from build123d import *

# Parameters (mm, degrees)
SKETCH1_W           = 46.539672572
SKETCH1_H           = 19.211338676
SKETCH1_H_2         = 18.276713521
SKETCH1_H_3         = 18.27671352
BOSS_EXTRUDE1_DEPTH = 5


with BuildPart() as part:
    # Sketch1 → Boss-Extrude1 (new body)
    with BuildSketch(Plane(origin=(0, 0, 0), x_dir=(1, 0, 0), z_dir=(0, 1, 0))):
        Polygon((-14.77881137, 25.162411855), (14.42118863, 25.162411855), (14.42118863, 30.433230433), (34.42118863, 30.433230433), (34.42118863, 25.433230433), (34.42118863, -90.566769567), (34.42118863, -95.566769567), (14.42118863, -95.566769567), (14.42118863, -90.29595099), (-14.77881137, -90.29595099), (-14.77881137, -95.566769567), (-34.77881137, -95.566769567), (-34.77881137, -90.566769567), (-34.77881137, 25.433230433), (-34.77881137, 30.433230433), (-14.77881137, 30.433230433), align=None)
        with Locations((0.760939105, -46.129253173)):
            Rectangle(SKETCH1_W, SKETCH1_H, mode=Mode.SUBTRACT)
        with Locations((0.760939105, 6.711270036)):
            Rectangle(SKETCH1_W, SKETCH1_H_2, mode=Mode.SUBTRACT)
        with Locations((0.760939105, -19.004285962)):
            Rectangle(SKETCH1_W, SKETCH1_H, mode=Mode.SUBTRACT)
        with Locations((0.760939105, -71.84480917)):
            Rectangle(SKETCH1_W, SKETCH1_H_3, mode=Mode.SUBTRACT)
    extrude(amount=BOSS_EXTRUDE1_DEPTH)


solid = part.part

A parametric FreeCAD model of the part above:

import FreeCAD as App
import Part
import Sketcher


def add_polygon(sketch, points):
    """Adds a closed chain of lines whose ends are joined by coincident constraints."""
    first, n = sketch.GeometryCount, len(points)
    for a, b in zip(points, points[1:] + points[:1]):
        sketch.addGeometry(Part.LineSegment(App.Vector(*a, 0), App.Vector(*b, 0)), False)
    for i in range(n):
        sketch.addConstraint(Sketcher.Constraint("Coincident", first + i, 2, first + (i + 1) % n, 1))

doc = App.newDocument("Part")
params = doc.addObject("Spreadsheet::Sheet", "Params")
for row, (alias, value) in enumerate([
    ("sketch1_width", "20 mm"),
    ("sketch1_height", "126 mm"),
    ("sketch1_width2", "29.2 mm"),
    ("pad1_length", "5 mm"),
], start=1):
    params.set(f"A{row}", alias)
    params.set(f"B{row}", "=" + value)
    params.setAlias(f"B{row}", alias)

body = doc.addObject("PartDesign::Body", "Body")

sketch1 = doc.addObject("Sketcher::SketchObject", "Sketch")
body.addObject(sketch1)
sketch1.AttachmentSupport = (doc.XZ_Plane, [""])
sketch1.MapMode = "FlatFace"
add_polygon(sketch1, [(14.421189, -25.162412), (-14.778811, -25.162412), (-14.778811, -30.43323), (-34.778811, -30.43323), (-34.778811, 95.56677), (-14.778811, 95.56677), (-14.778811, 90.295951), (14.421189, 90.295951), (14.421189, 95.56677), (34.421189, 95.56677), (34.421189, -30.43323), (14.421189, -30.43323)])
add_polygon(sketch1, [(-22.508897, 80.983166), (-22.508897, 62.706452), (24.030775, 62.706452), (24.030775, 80.983166)])
add_polygon(sketch1, [(-22.508897, 55.734923), (-22.508897, 36.523584), (24.030775, 36.523584), (24.030775, 55.734923)])
add_polygon(sketch1, [(-22.508897, 28.609955), (-22.508897, 9.398617), (24.030775, 9.398617), (24.030775, 28.609955)])
add_polygon(sketch1, [(-22.508897, 2.427087), (-22.508897, -15.849627), (24.030775, -15.849627), (24.030775, 2.427087)])
sketch1.addConstraint([
    Sketcher.Constraint("Horizontal", 0),
    Sketcher.Constraint("Vertical", 1),
    Sketcher.Constraint("Horizontal", 2),
    Sketcher.Constraint("Vertical", 3),
    Sketcher.Constraint("Horizontal", 4),
    Sketcher.Constraint("Vertical", 5),
    Sketcher.Constraint("Horizontal", 6),
    Sketcher.Constraint("Vertical", 7),
    Sketcher.Constraint("Horizontal", 8),
    Sketcher.Constraint("Vertical", 9),
    Sketcher.Constraint("Horizontal", 10),
    Sketcher.Constraint("Vertical", 11),
    Sketcher.Constraint("Vertical", 12),
    Sketcher.Constraint("Horizontal", 13),
    Sketcher.Constraint("Vertical", 14),
    Sketcher.Constraint("Horizontal", 15),
    Sketcher.Constraint("Vertical", 16),
    Sketcher.Constraint("Horizontal", 17),
    Sketcher.Constraint("Vertical", 18),
    Sketcher.Constraint("Horizontal", 19),
    Sketcher.Constraint("Vertical", 20),
    Sketcher.Constraint("Horizontal", 21),
    Sketcher.Constraint("Vertical", 22),
    Sketcher.Constraint("Horizontal", 23),
    Sketcher.Constraint("Vertical", 24),
    Sketcher.Constraint("Horizontal", 25),
    Sketcher.Constraint("Vertical", 26),
    Sketcher.Constraint("Horizontal", 27),
    Sketcher.Constraint("Horizontal", 4, 2, 7, 2),
    Sketcher.Constraint("Horizontal", 2, 2, 9, 2),
    Sketcher.Constraint("Vertical", 1, 2, 4, 2),
    Sketcher.Constraint("Vertical", 7, 2, 10, 2),
    Sketcher.Constraint("Vertical", 15, 2, 16, 2),
    Sketcher.Constraint("Vertical", 14, 2, 17, 2),
    Sketcher.Constraint("Vertical", 19, 2, 20, 2),
    Sketcher.Constraint("Vertical", 18, 2, 21, 2),
    Sketcher.Constraint("Vertical", 23, 2, 24, 2),
    Sketcher.Constraint("Vertical", 22, 2, 25, 2),
    Sketcher.Constraint("Equal", 4, 8),
    Sketcher.Constraint("Equal", 1, 5),
    Sketcher.Constraint("Equal", 18, 20),
    Sketcher.Constraint("Equal", 14, 24),
    Sketcher.Constraint("DistanceX", 2, 2, 2, 1, 20.0),
    Sketcher.Constraint("DistanceY", 3, 1, 3, 2, 126.0),
    Sketcher.Constraint("DistanceX", 0, 2, 0, 1, 29.2),
    Sketcher.Constraint("DistanceY", 1, 2, 1, 1, 5.270819),
    Sketcher.Constraint("DistanceY", 16, 2, 16, 1, 19.211339),
    Sketcher.Constraint("DistanceY", 12, 2, 5, 2, 27.589499),
    Sketcher.Constraint("DistanceY", 11, 2, 26, 2, 27.589499),
    Sketcher.Constraint("DistanceX", 13, 1, 13, 2, 46.539673),
    Sketcher.Constraint("DistanceY", 12, 2, 12, 1, 18.276714),
    Sketcher.Constraint("DistanceX", 0, 2, -1, 1, 14.778811),
    Sketcher.Constraint("DistanceY", 0, 2, -1, 1, 25.162412),
    Sketcher.Constraint("DistanceY", 16, 2, 12, 2, 26.182869),
    Sketcher.Constraint("DistanceY", 0, 2, 20, 2, 34.561028),
    Sketcher.Constraint("DistanceX", 12, 2, -1, 1, 22.508897),
])
sketch1.setExpression("Constraints[70]", "Params.sketch1_width")
sketch1.setExpression("Constraints[71]", "Params.sketch1_height")
sketch1.setExpression("Constraints[72]", "Params.sketch1_width2")
pad1 = doc.addObject("PartDesign::Pad", "Pad")
body.addObject(pad1)
pad1.Profile = sketch1
pad1.setExpression("Length", "Params.pad1_length")
pad1.Reversed = True

doc.recompute()
